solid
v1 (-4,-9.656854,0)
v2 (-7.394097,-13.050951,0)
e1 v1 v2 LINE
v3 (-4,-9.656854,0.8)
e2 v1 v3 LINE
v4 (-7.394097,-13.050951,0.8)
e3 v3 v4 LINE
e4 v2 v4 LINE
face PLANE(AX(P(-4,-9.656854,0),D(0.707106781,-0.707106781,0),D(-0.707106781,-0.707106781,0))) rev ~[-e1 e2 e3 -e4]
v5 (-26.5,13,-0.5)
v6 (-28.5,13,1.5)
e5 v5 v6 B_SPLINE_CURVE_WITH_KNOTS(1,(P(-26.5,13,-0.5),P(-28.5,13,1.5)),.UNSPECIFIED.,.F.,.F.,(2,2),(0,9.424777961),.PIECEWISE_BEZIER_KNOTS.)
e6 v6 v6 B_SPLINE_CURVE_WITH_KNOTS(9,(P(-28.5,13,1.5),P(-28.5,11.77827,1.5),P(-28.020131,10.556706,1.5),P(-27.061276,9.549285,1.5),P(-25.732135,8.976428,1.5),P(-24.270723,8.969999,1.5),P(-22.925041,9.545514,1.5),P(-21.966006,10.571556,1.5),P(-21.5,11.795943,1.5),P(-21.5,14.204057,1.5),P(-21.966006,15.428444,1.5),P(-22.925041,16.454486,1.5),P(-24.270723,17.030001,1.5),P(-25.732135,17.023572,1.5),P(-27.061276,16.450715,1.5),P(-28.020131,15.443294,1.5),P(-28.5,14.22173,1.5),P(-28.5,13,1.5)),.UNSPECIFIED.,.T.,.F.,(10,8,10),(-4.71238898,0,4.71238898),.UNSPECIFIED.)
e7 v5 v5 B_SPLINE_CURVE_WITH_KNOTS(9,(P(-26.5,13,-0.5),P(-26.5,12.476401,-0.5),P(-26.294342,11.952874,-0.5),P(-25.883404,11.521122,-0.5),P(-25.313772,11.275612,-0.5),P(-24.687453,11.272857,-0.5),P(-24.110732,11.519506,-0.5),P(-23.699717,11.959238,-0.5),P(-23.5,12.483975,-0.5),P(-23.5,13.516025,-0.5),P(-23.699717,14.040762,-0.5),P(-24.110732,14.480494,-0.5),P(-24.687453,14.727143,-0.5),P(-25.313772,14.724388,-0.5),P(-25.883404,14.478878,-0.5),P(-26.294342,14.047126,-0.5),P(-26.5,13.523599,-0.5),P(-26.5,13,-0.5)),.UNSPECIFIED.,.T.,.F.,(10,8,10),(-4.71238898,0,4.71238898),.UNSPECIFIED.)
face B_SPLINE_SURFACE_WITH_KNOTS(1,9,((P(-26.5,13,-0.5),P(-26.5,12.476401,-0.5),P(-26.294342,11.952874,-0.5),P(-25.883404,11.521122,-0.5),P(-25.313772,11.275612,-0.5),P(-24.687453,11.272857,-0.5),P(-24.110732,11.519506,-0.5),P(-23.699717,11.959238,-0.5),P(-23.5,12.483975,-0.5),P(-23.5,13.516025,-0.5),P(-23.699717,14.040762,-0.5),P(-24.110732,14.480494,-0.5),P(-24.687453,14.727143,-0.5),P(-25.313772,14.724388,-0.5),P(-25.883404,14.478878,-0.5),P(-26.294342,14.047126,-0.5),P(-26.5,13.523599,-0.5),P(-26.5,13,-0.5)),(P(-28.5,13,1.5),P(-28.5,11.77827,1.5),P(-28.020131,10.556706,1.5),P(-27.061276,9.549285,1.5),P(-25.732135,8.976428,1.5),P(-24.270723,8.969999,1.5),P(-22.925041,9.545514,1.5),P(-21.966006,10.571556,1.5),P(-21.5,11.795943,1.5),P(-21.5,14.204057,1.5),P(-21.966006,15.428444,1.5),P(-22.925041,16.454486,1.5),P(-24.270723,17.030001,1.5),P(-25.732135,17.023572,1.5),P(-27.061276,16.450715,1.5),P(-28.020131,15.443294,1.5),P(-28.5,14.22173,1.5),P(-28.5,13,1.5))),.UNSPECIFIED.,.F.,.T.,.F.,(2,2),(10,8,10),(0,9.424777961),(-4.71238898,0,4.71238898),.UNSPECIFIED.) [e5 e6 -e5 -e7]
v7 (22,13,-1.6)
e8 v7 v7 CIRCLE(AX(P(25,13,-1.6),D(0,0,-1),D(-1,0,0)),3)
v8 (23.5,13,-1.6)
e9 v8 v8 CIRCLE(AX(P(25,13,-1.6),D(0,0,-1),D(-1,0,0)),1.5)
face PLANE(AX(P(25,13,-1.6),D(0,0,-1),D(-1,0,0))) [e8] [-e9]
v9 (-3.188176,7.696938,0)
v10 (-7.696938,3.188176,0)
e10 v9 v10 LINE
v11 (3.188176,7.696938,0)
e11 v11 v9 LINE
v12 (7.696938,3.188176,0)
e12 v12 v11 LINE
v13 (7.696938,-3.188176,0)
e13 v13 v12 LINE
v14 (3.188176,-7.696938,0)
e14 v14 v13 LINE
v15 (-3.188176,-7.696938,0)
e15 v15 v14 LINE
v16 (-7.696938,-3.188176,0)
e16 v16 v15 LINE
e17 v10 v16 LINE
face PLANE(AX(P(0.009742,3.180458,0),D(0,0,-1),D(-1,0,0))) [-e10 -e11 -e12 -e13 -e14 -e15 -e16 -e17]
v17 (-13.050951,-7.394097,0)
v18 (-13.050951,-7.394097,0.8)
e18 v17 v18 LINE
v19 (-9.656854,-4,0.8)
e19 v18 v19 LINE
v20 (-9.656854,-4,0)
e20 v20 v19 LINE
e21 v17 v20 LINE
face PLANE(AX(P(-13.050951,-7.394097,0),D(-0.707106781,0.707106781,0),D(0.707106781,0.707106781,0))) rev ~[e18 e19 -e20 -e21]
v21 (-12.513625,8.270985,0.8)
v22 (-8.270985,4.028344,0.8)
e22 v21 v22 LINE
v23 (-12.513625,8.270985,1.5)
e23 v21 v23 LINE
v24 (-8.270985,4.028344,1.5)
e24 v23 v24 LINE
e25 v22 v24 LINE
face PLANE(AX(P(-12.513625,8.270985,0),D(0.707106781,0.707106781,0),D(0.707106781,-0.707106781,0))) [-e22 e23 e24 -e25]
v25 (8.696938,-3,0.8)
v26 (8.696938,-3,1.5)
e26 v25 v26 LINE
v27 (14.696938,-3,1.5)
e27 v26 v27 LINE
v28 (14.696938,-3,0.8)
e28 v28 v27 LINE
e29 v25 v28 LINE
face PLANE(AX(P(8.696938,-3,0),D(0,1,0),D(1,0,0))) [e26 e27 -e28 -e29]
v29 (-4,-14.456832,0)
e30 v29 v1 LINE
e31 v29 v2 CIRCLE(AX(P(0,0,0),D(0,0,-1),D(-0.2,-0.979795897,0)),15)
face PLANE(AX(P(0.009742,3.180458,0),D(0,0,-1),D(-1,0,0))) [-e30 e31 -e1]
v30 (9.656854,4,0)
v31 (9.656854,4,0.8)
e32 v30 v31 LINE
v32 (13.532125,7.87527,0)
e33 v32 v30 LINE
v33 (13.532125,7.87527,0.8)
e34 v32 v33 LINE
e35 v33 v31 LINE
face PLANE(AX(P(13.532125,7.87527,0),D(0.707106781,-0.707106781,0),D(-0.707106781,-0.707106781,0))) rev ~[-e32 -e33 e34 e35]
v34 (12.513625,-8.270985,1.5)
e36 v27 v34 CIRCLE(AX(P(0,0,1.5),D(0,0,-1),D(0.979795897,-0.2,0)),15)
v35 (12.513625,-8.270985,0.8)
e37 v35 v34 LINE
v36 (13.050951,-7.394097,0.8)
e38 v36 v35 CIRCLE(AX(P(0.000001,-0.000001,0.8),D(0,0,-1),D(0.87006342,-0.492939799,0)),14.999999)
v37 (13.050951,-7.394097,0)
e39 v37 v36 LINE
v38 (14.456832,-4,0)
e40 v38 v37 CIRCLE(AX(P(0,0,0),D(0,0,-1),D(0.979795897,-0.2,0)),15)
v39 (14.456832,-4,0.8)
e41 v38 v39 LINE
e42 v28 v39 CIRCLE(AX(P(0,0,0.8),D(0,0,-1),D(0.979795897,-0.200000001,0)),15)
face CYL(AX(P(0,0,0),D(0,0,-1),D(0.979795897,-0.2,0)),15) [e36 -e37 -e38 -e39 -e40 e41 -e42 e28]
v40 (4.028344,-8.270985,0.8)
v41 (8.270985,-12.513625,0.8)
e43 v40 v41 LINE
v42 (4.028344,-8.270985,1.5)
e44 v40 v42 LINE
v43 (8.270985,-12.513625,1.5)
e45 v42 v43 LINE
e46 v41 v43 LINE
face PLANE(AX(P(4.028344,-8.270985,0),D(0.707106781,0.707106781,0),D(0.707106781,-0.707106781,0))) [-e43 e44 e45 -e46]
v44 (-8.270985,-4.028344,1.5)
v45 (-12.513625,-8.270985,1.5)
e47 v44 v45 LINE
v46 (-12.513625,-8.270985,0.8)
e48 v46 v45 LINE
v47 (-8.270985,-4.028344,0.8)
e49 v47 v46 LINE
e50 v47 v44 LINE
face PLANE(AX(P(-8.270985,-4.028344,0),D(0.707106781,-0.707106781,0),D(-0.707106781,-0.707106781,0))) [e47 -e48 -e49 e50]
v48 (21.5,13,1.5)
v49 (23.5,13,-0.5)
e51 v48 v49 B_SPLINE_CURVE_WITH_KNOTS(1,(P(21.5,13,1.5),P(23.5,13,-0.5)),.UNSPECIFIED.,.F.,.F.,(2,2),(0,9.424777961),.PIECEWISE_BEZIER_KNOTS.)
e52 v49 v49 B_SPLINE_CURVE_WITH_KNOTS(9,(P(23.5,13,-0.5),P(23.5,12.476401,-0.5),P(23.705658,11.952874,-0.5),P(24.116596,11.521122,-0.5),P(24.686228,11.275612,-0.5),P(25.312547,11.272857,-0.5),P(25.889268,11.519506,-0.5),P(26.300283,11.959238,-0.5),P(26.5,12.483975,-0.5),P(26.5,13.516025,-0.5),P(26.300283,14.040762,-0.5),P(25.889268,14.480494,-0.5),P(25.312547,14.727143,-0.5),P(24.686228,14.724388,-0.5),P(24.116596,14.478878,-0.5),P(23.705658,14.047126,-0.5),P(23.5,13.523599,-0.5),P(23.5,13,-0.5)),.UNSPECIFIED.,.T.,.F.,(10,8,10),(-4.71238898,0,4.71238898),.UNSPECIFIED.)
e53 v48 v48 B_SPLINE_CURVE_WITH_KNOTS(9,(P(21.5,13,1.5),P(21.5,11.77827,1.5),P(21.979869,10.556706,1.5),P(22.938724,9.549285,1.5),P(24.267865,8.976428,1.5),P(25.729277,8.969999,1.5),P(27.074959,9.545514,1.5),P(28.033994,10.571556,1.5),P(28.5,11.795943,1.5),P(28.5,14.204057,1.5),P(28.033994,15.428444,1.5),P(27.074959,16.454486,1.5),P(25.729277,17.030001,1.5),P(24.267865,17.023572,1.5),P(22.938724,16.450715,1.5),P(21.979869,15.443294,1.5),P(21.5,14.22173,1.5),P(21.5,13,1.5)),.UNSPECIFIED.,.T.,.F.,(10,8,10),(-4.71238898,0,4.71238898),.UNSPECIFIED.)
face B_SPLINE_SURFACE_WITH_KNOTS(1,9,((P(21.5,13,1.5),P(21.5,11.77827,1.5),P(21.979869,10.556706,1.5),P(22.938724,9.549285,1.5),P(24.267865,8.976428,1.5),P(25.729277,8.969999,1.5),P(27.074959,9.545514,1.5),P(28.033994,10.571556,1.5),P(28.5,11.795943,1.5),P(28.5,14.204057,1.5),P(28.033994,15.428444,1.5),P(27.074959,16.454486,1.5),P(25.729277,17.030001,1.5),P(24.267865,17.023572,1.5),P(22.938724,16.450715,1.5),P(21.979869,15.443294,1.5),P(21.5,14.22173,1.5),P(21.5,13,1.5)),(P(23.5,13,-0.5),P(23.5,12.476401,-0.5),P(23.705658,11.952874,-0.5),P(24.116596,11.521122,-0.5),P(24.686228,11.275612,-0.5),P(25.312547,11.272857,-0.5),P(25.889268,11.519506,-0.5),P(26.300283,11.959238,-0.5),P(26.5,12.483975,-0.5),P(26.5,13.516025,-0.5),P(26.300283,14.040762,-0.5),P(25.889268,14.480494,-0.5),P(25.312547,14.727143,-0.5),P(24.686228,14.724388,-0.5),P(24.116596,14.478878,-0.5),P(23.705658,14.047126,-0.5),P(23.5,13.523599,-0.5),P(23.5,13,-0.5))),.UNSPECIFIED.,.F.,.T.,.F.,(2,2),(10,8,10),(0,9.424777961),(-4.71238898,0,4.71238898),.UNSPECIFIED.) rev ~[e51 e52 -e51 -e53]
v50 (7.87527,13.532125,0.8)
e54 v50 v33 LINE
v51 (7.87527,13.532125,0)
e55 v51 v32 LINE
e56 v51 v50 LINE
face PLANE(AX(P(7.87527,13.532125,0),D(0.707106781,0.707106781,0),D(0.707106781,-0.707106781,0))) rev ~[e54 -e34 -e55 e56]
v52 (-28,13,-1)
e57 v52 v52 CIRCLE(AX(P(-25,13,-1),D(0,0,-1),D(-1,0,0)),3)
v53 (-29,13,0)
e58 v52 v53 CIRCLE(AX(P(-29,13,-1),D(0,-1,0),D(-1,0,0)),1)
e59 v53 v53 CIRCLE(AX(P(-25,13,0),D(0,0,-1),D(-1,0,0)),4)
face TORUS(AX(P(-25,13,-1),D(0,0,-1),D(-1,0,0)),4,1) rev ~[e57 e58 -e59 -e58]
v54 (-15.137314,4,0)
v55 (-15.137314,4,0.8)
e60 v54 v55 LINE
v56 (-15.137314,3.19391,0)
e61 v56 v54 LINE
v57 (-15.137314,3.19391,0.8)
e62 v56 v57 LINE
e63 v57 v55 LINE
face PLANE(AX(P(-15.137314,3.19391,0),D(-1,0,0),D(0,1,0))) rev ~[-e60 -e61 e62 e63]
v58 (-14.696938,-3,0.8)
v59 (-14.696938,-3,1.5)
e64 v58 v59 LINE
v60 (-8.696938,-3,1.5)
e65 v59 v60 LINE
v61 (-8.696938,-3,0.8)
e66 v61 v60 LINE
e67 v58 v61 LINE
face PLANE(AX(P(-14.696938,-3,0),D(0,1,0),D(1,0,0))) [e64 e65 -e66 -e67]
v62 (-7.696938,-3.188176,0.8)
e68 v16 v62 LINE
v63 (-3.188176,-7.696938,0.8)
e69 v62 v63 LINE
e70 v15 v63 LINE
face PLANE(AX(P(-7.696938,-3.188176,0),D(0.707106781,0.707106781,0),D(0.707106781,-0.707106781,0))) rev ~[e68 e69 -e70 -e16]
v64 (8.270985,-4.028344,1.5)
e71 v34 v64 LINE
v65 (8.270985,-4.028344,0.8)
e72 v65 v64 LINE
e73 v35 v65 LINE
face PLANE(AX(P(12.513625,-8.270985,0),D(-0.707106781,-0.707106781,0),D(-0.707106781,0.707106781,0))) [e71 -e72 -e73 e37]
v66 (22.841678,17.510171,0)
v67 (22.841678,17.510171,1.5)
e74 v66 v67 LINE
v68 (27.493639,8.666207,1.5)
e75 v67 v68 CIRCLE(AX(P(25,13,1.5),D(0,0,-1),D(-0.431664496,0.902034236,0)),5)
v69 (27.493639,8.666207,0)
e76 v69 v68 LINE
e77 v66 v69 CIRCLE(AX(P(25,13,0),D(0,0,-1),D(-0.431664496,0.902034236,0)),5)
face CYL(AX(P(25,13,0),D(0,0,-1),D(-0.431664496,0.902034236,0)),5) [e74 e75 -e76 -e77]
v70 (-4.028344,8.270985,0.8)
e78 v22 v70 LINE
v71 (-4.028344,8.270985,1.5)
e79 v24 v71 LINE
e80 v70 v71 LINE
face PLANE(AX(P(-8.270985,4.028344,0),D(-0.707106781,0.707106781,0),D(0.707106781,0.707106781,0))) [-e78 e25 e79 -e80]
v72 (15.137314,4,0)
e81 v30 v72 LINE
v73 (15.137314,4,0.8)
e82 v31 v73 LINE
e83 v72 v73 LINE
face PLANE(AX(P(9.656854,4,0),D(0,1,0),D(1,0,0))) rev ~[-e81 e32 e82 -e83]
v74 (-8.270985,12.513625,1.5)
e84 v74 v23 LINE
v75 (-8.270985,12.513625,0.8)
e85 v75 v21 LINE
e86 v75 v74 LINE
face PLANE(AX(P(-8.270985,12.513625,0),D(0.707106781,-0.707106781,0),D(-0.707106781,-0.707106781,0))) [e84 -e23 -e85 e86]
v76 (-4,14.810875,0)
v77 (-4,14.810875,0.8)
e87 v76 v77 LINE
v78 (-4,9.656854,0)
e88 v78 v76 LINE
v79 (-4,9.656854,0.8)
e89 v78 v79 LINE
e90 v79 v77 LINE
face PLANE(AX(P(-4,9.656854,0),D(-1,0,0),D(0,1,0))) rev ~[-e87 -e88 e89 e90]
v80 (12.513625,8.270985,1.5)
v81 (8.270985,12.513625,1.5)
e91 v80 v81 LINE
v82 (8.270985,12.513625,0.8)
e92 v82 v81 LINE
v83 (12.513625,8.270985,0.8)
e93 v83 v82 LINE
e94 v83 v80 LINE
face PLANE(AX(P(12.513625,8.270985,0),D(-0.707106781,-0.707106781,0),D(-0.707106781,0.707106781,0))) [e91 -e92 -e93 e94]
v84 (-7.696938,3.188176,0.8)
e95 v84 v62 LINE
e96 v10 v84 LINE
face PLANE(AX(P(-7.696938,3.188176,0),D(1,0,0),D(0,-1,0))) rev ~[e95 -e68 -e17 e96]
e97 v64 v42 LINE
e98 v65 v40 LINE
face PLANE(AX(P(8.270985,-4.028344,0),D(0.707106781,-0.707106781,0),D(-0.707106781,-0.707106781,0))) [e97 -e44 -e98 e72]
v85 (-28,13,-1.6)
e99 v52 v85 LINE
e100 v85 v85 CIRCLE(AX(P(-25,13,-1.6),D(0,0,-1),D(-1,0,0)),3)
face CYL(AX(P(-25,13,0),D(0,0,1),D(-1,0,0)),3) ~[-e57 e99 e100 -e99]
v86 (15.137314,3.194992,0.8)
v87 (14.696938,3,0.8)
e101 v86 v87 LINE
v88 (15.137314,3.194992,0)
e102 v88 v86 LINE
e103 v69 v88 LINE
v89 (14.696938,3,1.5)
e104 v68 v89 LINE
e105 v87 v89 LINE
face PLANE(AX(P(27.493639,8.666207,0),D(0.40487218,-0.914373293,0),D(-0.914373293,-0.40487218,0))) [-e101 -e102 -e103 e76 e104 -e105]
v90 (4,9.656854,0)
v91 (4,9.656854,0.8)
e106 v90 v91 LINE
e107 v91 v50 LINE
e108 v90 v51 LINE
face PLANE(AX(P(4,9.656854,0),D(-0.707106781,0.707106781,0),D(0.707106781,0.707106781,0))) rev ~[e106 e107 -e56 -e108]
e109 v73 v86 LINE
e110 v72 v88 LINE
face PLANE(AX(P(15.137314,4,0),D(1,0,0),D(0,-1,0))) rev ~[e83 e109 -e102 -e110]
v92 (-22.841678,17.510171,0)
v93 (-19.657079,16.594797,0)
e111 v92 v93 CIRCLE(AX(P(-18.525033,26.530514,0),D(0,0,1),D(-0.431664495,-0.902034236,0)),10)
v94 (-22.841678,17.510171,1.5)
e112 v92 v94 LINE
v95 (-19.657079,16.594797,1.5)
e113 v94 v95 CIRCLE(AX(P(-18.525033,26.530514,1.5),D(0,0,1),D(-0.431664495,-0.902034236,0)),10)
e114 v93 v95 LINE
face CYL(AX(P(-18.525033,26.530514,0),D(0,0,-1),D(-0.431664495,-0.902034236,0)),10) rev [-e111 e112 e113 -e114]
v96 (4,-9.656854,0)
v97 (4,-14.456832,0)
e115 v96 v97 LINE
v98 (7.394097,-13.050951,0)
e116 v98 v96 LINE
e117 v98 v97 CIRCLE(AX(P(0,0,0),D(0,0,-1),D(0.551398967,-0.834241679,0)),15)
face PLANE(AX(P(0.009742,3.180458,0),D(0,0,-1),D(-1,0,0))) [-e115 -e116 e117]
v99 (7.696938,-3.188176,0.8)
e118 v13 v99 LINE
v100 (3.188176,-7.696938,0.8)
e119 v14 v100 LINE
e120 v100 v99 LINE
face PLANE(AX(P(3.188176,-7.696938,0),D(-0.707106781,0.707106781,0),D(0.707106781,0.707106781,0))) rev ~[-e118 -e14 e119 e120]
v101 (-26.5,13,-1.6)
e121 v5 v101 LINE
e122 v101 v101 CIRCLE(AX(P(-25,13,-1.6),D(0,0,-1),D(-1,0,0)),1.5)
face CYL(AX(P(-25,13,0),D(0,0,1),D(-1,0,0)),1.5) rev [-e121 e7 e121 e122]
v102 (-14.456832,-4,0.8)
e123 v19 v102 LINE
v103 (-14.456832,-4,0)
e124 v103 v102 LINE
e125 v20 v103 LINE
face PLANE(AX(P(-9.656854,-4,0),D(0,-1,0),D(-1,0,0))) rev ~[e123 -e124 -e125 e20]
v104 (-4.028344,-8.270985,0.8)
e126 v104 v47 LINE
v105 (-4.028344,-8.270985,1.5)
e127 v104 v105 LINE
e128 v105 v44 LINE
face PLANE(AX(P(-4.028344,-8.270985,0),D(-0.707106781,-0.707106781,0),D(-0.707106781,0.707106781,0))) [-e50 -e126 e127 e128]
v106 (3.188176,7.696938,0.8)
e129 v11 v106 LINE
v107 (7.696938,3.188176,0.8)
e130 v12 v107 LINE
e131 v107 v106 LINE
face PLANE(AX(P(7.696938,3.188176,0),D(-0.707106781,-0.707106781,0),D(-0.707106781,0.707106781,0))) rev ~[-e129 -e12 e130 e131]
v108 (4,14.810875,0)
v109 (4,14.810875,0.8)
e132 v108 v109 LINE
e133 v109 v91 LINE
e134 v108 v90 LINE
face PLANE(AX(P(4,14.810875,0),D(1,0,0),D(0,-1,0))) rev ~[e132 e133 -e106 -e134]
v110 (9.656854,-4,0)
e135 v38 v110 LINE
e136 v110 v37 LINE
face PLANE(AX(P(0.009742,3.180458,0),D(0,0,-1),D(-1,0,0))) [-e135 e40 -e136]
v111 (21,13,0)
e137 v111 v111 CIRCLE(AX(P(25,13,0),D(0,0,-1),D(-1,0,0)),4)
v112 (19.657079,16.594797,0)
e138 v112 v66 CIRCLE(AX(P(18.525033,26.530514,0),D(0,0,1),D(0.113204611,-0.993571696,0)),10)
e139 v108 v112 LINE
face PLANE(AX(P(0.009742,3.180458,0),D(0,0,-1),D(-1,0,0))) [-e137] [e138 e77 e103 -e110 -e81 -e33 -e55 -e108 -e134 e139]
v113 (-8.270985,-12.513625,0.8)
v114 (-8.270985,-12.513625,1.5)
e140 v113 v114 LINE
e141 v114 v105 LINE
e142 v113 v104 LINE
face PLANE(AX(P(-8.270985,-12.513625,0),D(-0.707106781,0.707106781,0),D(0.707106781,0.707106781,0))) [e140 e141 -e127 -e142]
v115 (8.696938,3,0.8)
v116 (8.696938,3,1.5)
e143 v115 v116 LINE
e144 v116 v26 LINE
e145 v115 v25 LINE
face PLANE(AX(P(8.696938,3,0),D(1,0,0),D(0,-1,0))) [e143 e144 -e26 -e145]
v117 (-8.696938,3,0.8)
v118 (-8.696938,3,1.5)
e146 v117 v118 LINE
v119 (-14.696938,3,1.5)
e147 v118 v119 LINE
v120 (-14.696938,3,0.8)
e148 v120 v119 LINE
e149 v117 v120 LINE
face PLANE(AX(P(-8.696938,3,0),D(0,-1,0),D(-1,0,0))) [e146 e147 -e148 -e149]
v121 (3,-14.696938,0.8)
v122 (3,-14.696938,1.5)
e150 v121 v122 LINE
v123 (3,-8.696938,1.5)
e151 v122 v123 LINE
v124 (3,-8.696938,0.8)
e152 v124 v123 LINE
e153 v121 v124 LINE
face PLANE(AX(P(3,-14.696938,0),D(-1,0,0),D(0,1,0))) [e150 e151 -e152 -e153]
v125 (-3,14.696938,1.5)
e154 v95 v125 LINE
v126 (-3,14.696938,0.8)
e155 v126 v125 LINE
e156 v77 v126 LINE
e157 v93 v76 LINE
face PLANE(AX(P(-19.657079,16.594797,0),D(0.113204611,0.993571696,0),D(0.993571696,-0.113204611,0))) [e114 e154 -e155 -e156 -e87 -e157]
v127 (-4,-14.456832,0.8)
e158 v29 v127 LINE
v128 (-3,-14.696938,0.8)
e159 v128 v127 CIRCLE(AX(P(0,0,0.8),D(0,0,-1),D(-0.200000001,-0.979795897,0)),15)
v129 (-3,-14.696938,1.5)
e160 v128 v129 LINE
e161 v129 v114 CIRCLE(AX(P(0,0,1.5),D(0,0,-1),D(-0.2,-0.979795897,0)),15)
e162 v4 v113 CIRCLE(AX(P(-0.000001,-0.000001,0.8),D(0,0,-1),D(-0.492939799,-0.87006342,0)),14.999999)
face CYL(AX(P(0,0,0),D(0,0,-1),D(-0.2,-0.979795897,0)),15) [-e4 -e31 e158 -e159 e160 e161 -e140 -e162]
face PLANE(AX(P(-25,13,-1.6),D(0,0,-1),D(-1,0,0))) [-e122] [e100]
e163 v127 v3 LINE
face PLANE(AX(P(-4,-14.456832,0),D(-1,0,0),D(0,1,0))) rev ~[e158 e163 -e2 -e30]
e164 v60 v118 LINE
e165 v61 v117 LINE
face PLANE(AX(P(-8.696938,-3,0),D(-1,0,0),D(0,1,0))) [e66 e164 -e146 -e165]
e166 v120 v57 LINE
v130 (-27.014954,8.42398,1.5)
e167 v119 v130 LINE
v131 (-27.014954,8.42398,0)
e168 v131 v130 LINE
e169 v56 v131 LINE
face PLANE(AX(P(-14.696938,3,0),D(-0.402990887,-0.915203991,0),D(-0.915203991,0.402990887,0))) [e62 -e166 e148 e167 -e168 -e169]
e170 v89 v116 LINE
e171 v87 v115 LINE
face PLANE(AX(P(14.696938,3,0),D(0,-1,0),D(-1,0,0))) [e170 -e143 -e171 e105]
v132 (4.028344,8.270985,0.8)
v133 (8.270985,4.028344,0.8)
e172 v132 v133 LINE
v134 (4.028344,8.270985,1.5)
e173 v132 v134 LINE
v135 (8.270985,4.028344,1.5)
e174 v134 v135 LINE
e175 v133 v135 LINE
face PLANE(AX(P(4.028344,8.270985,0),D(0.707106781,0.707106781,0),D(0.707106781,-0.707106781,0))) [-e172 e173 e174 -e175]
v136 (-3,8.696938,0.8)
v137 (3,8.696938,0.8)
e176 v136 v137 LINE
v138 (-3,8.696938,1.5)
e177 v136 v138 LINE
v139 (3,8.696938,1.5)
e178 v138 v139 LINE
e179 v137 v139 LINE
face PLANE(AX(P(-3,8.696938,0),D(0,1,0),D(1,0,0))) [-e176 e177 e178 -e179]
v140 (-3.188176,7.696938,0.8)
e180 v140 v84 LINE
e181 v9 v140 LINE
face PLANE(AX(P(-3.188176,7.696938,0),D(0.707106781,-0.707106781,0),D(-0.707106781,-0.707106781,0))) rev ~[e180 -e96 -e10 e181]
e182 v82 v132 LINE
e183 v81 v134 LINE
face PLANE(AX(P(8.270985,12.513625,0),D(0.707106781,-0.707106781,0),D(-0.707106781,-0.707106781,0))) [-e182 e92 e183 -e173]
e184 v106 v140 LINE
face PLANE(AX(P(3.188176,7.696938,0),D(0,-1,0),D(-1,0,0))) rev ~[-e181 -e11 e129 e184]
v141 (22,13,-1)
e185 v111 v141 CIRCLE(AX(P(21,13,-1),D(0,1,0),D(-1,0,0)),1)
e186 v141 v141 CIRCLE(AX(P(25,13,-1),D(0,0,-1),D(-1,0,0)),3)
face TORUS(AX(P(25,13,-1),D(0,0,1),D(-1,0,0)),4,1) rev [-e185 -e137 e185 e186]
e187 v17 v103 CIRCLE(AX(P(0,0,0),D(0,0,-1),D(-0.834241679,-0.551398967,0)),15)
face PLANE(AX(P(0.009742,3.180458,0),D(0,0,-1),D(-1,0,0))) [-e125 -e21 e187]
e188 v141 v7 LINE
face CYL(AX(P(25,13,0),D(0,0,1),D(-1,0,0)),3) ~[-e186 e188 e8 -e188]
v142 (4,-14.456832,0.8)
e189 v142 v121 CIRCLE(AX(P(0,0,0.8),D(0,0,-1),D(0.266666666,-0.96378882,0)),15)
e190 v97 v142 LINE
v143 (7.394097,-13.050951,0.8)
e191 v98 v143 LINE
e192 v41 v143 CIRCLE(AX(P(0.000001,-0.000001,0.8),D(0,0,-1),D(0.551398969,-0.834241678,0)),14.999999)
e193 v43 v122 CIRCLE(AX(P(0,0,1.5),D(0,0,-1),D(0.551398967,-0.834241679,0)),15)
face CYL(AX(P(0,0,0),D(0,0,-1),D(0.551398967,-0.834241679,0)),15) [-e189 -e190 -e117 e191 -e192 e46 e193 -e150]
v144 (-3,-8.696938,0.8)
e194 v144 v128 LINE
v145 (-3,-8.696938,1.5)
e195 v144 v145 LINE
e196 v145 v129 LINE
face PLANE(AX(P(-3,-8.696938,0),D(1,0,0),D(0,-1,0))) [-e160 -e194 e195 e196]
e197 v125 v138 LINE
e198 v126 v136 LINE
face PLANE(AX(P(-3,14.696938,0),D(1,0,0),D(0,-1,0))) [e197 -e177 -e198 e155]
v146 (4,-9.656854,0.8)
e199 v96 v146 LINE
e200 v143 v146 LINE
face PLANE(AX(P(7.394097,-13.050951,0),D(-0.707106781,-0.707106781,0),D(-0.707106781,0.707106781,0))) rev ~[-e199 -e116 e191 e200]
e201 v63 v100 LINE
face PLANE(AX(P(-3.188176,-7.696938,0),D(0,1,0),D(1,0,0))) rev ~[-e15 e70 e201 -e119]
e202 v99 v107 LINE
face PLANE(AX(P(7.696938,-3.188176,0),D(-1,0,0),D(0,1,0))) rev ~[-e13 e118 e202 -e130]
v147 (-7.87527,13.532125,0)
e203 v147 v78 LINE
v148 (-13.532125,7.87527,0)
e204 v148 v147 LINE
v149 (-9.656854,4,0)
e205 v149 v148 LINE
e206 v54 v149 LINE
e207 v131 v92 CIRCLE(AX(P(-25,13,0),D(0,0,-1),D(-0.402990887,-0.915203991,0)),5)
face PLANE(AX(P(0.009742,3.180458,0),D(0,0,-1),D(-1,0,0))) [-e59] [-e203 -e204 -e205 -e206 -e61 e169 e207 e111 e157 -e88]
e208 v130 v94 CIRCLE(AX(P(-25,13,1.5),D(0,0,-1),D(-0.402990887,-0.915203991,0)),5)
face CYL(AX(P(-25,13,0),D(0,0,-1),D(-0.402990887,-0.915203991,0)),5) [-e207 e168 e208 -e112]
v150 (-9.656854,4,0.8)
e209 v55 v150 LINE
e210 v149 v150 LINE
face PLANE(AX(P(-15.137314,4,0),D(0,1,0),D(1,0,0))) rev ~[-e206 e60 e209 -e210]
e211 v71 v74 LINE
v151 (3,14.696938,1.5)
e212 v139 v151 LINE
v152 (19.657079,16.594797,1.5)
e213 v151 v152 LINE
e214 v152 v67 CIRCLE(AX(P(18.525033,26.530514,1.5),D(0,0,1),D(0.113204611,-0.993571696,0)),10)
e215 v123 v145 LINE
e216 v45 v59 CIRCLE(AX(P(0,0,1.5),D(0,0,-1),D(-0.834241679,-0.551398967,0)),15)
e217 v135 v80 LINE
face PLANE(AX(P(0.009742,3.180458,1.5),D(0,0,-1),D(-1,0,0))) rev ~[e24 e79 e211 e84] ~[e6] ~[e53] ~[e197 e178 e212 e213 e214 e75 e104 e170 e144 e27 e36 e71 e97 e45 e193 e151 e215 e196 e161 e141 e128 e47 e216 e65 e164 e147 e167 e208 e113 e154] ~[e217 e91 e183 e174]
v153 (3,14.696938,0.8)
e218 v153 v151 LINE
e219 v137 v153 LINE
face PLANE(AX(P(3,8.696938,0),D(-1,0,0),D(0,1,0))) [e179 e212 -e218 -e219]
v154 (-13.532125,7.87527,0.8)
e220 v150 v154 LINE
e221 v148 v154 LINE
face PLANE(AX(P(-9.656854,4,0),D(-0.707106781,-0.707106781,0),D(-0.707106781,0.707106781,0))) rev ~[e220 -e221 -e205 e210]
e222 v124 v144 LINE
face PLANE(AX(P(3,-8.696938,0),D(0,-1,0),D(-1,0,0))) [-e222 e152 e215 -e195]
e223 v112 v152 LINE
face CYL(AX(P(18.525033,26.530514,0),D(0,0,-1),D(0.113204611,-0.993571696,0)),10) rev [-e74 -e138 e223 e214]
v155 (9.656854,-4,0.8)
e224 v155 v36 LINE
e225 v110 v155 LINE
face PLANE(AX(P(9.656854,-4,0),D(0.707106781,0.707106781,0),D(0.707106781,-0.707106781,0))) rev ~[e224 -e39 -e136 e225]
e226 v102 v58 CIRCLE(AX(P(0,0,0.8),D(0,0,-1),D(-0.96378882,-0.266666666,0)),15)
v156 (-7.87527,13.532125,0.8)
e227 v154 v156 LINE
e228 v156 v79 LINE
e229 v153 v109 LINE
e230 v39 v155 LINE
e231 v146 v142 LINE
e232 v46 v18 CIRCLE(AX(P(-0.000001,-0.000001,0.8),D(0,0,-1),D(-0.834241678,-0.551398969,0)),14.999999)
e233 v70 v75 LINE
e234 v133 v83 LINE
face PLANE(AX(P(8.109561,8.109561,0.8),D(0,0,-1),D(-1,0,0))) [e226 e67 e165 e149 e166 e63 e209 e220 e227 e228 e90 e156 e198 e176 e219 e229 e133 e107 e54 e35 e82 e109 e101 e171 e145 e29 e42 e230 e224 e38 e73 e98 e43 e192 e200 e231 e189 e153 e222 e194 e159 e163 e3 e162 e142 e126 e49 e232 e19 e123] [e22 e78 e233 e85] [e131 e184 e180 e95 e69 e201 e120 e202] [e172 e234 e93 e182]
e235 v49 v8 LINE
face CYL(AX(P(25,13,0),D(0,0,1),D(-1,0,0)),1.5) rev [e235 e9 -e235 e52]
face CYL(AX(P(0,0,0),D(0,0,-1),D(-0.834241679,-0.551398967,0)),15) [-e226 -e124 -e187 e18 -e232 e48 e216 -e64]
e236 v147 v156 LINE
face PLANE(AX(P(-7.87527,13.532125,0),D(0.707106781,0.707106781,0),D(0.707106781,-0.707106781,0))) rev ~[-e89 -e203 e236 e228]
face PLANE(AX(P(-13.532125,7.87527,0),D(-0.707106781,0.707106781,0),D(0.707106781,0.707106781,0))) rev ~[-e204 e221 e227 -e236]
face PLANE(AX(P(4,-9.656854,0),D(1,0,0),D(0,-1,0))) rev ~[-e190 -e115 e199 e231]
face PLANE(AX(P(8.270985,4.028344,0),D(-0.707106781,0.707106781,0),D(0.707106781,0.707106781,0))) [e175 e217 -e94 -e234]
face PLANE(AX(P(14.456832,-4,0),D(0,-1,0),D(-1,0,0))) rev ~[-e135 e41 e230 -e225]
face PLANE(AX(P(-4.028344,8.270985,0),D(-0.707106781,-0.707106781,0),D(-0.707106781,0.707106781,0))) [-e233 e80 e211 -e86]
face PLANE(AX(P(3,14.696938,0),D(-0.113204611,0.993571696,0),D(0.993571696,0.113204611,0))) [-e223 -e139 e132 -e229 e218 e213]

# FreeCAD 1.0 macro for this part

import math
import FreeCAD as App
import Part
import Sketcher
from FreeCAD import Vector


def edges_at(feature, points):
    """Names of the edges that pass closest to the given points."""
    edges = feature.Shape.Edges
    near = lambda p: min(range(len(edges)), key=lambda i: edges[i].distToShape(Part.Vertex(*p))[0])
    return sorted({f"Edge{near(p) + 1}" for p in points})

doc = App.newDocument("Part")
params = doc.addObject("Spreadsheet::Sheet", "Params")
for row, (alias, value) in enumerate([
    ("sketch1_diameter", "3 mm"),
    ("sketch1_radius", "10 mm"),
    ("sketch1_radius2", "5 mm"),
    ("sketch1_radius3", "15 mm"),
    ("sketch1_width", "6 mm"),
    ("pad1_length", "1.5 mm"),
    ("sketch2_radius", "15 mm"),
    ("sketch2_width", "6 mm"),
    ("sketch2_length", "6 mm"),
    ("sketch2_length2", "8 mm"),
    ("pocket1_length", "0.8 mm"),
    ("sketch3_diameter", "6 mm"),
    ("sketch3_diameter2", "3 mm"),
    ("pad2_length", "1.6 mm"),
    ("fillet_radius", "1 mm"),
    ("chamfer_size", "2 mm"),
], start=1):
    params.set(f"A{row}", alias)
    params.set(f"B{row}", "=" + value)
    params.setAlias(f"B{row}", alias)

body = doc.addObject("PartDesign::Body", "Body")

sketch1 = body.newObject("Sketcher::SketchObject", "Sketch")
sketch1.AttachmentSupport = (doc.getObject("XY_Plane"), [""])
sketch1.MapMode = "FlatFace"
sketch1.addGeometry([
    Part.LineSegment(Vector(-3, 8.7, 0), Vector(-3, 14.7, 0)),
    Part.LineSegment(Vector(-3, 14.7, 0), Vector(-19.7, 16.6, 0)),
    Part.ArcOfCircle(Part.Circle(Vector(-18.5, 26.5, 0), Vector(0, 0, 1), 10), math.radians(-115.57), math.radians(-96.5)),
    Part.ArcOfCircle(Part.Circle(Vector(-25, 13, 0), Vector(0, 0, 1), 5), math.radians(64), math.radians(246)),
    Part.LineSegment(Vector(-27, 8.4, 0), Vector(-14.7, 3, 0)),
    Part.LineSegment(Vector(-14.7, 3, 0), Vector(-8.7, 3, 0)),
    Part.LineSegment(Vector(-8.7, 3, 0), Vector(-8.7, -3, 0)),
    Part.LineSegment(Vector(-8.7, -3, 0), Vector(-14.7, -3, 0)),
    Part.ArcOfCircle(Part.Circle(Vector(0, 0, 0), Vector(0, 0, 1), 15), math.radians(-168), math.radians(-147)),
    Part.LineSegment(Vector(-12.5, -8.3, 0), Vector(-8.3, -4, 0)),
    Part.LineSegment(Vector(-8.3, -4, 0), Vector(-4, -8.3, 0)),
    Part.LineSegment(Vector(-4, -8.3, 0), Vector(-8.3, -12.5, 0)),
    Part.ArcOfCircle(Part.Circle(Vector(0, 0, 0), Vector(0, 0, 1), 15), math.radians(-123), math.radians(-102)),
    Part.LineSegment(Vector(-3, -14.7, 0), Vector(-3, -8.7, 0)),
    Part.LineSegment(Vector(-3, -8.7, 0), Vector(3, -8.7, 0)),
    Part.LineSegment(Vector(3, -8.7, 0), Vector(3, -14.7, 0)),
    Part.ArcOfCircle(Part.Circle(Vector(0, 0, 0), Vector(0, 0, 1), 15), math.radians(-78), math.radians(-57)),
    Part.LineSegment(Vector(8.3, -12.5, 0), Vector(4, -8.3, 0)),
    Part.LineSegment(Vector(4, -8.3, 0), Vector(8.3, -4, 0)),
    Part.LineSegment(Vector(8.3, -4, 0), Vector(12.5, -8.3, 0)),
    Part.ArcOfCircle(Part.Circle(Vector(0, 0, 0), Vector(0, 0, 1), 15), math.radians(-33), math.radians(-12)),
    Part.LineSegment(Vector(14.7, -3, 0), Vector(8.7, -3, 0)),
    Part.LineSegment(Vector(8.7, -3, 0), Vector(8.7, 3, 0)),
    Part.LineSegment(Vector(8.7, 3, 0), Vector(14.7, 3, 0)),
    Part.LineSegment(Vector(14.7, 3, 0), Vector(27.5, 8.7, 0)),
    Part.ArcOfCircle(Part.Circle(Vector(25, 13, 0), Vector(0, 0, 1), 5), math.radians(-60), math.radians(116)),
    Part.ArcOfCircle(Part.Circle(Vector(18.5, 26.5, 0), Vector(0, 0, 1), 10), math.radians(-83.5), math.radians(-64.43)),
    Part.LineSegment(Vector(19.7, 16.6, 0), Vector(3, 14.7, 0)),
    Part.LineSegment(Vector(3, 14.7, 0), Vector(3, 8.7, 0)),
    Part.LineSegment(Vector(3, 8.7, 0), Vector(-3, 8.7, 0)),
    Part.LineSegment(Vector(4, 8.3, 0), Vector(8.3, 12.5, 0)),
    Part.LineSegment(Vector(8.3, 12.5, 0), Vector(12.5, 8.3, 0)),
    Part.LineSegment(Vector(12.5, 8.3, 0), Vector(8.3, 4, 0)),
    Part.LineSegment(Vector(8.3, 4, 0), Vector(4, 8.3, 0)),
    Part.LineSegment(Vector(-8.3, 4, 0), Vector(-12.5, 8.3, 0)),
    Part.LineSegment(Vector(-12.5, 8.3, 0), Vector(-8.3, 12.5, 0)),
    Part.LineSegment(Vector(-8.3, 12.5, 0), Vector(-4, 8.3, 0)),
    Part.LineSegment(Vector(-4, 8.3, 0), Vector(-8.3, 4, 0)),
    Part.Circle(Vector(25, 13, 0), Vector(0, 0, 1), 1.5),
    Part.Circle(Vector(-25, 13, 0), Vector(0, 0, 1), 1.5),
], False)
sketch1.addConstraint([
    Sketcher.Constraint("Coincident", 0, 2, 1, 1),
    Sketcher.Constraint("Tangent", 1, 2, 2, 2),
    Sketcher.Constraint("Tangent", 2, 1, 3, 1),
    Sketcher.Constraint("Tangent", 3, 2, 4, 1),
    Sketcher.Constraint("Coincident", 4, 2, 5, 1),
    Sketcher.Constraint("Coincident", 5, 2, 6, 1),
    Sketcher.Constraint("Coincident", 6, 2, 7, 1),
    Sketcher.Constraint("Coincident", 7, 2, 8, 1),
    Sketcher.Constraint("Coincident", 8, 2, 9, 1),
    Sketcher.Constraint("Coincident", 9, 2, 10, 1),
    Sketcher.Constraint("Coincident", 10, 2, 11, 1),
    Sketcher.Constraint("Coincident", 11, 2, 12, 1),
    Sketcher.Constraint("Coincident", 12, 2, 13, 1),
    Sketcher.Constraint("Coincident", 13, 2, 14, 1),
    Sketcher.Constraint("Coincident", 14, 2, 15, 1),
    Sketcher.Constraint("Coincident", 15, 2, 16, 1),
    Sketcher.Constraint("Coincident", 16, 2, 17, 1),
    Sketcher.Constraint("Coincident", 17, 2, 18, 1),
    Sketcher.Constraint("Coincident", 18, 2, 19, 1),
    Sketcher.Constraint("Coincident", 19, 2, 20, 1),
    Sketcher.Constraint("Coincident", 20, 2, 21, 1),
    Sketcher.Constraint("Coincident", 21, 2, 22, 1),
    Sketcher.Constraint("Coincident", 22, 2, 23, 1),
    Sketcher.Constraint("Coincident", 23, 2, 24, 1),
    Sketcher.Constraint("Coincident", 24, 2, 25, 1),
    Sketcher.Constraint("Tangent", 25, 2, 26, 2),
    Sketcher.Constraint("Tangent", 26, 1, 27, 1),
    Sketcher.Constraint("Coincident", 27, 2, 28, 1),
    Sketcher.Constraint("Coincident", 28, 2, 29, 1),
    Sketcher.Constraint("Coincident", 29, 2, 0, 1),
    Sketcher.Constraint("Coincident", 30, 2, 31, 1),
    Sketcher.Constraint("Coincident", 31, 2, 32, 1),
    Sketcher.Constraint("Coincident", 32, 2, 33, 1),
    Sketcher.Constraint("Coincident", 33, 2, 30, 1),
    Sketcher.Constraint("Coincident", 34, 2, 35, 1),
    Sketcher.Constraint("Coincident", 35, 2, 36, 1),
    Sketcher.Constraint("Coincident", 36, 2, 37, 1),
    Sketcher.Constraint("Coincident", 37, 2, 34, 1),
    Sketcher.Constraint("Vertical", 0),
    Sketcher.Constraint("Horizontal", 5),
    Sketcher.Constraint("Vertical", 6),
    Sketcher.Constraint("Horizontal", 7),
    Sketcher.Constraint("Vertical", 13),
    Sketcher.Constraint("Horizontal", 14),
    Sketcher.Constraint("Vertical", 15),
    Sketcher.Constraint("Horizontal", 21),
    Sketcher.Constraint("Vertical", 22),
    Sketcher.Constraint("Horizontal", 23),
    Sketcher.Constraint("Vertical", 28),
    Sketcher.Constraint("Horizontal", 29),
    Sketcher.Constraint("Coincident", 8, 3, -1, 1),
    Sketcher.Constraint("Coincident", 12, 3, -1, 1),
    Sketcher.Constraint("Coincident", 16, 3, -1, 1),
    Sketcher.Constraint("Coincident", 20, 3, -1, 1),
    Sketcher.Constraint("Coincident", 38, 3, 25, 3),
    Sketcher.Constraint("Coincident", 39, 3, 3, 3),
    Sketcher.Constraint("Equal", 8, 12),
    Sketcher.Constraint("Equal", 12, 16),
    Sketcher.Constraint("Equal", 16, 20),
    Sketcher.Constraint("Equal", 3, 25),
    Sketcher.Constraint("Equal", 2, 26),
    Sketcher.Constraint("Equal", 38, 39),
    Sketcher.Constraint("Symmetric", 0, 2, 15, 2, -1, 1),
    Sketcher.Constraint("Symmetric", 4, 2, 20, 2, -1, 1),
    Sketcher.Constraint("Symmetric", 6, 2, 22, 2, -1, 1),
    Sketcher.Constraint("Symmetric", 12, 2, 27, 2, -1, 1),
    Sketcher.Constraint("Symmetric", 11, 2, 30, 2, -1, 1),
    Sketcher.Constraint("Symmetric", 8, 2, 31, 2, -1, 1),
    Sketcher.Constraint("Symmetric", 9, 2, 32, 2, -1, 1),
    Sketcher.Constraint("Symmetric", 10, 2, 33, 2, -1, 1),
    Sketcher.Constraint("Symmetric", 19, 2, 34, 2, -1, 1),
    Sketcher.Constraint("Symmetric", 16, 2, 35, 2, -1, 1),
    Sketcher.Constraint("Symmetric", 17, 2, 36, 2, -1, 1),
    Sketcher.Constraint("Symmetric", 18, 2, 37, 2, -1, 1),
    Sketcher.Constraint("Symmetric", 3, 3, 25, 3, -2),
    Sketcher.Constraint("Symmetric", 10, 2, 17, 2, -2),
    Sketcher.Constraint("Symmetric", 9, 2, 18, 2, -2),
    Sketcher.Constraint("Symmetric", 4, 2, 23, 2, -2),
    Sketcher.Constraint("Symmetric", 1, 2, 26, 1, -2),
    Sketcher.Constraint("Perpendicular", 9, 10),
    Sketcher.Constraint("Perpendicular", 10, 11),
    Sketcher.Constraint("Perpendicular", 11, 17),
    Sketcher.Constraint("Perpendicular", 17, 18),
    Sketcher.Constraint("Perpendicular", 18, 19),
    Sketcher.Constraint("Perpendicular", 30, 31),
    Sketcher.Constraint("Horizontal", 8, 2, 10, 2),
    Sketcher.Constraint("Equal", 7, 14),
    Sketcher.Constraint("Equal", 29, 0),
    Sketcher.Constraint("Equal", 0, 6),
    Sketcher.Constraint("Equal", 6, 13),
    Sketcher.Constraint("Diameter", 38, 3.0),
    Sketcher.Constraint("Radius", 2, 10.0),
    Sketcher.Constraint("Radius", 3, 5.0),
    Sketcher.Constraint("Radius", 8, 15.0),
    Sketcher.Constraint("DistanceX", 5, 1, 5, 2, 6.0),
    Sketcher.Constraint("Distance", 9, 6.0),
    Sketcher.Constraint("DistanceX", 3, 3, -1, 1, 25.0),
    Sketcher.Constraint("DistanceY", -1, 1, 3, 3, 13.0),
    Sketcher.Constraint("DistanceX", 2, 1, 1, 2, 3.184599),
    Sketcher.Constraint("DistanceX", 23, 2, 24, 2, 12.7967),
])
sketch1.setExpression("Constraints[90]", "Params.sketch1_diameter")
sketch1.setExpression("Constraints[91]", "Params.sketch1_radius")
sketch1.setExpression("Constraints[92]", "Params.sketch1_radius2")
sketch1.setExpression("Constraints[93]", "Params.sketch1_radius3")
sketch1.setExpression("Constraints[94]", "Params.sketch1_width")
pad1 = body.newObject("PartDesign::Pad", "Pad")
pad1.Profile = sketch1
pad1.setExpression("Length", "Params.pad1_length")

sketch2 = body.newObject("Sketcher::SketchObject", "Sketch001")
sketch2.AttachmentSupport = (doc.getObject("XY_Plane"), [""])
sketch2.MapMode = "FlatFace"
sketch2.addGeometry([
    Part.LineSegment(Vector(13.53, 7.88, 0), Vector(9.66, 4, 0)),
    Part.LineSegment(Vector(9.66, 4, 0), Vector(15.14, 4, 0)),
    Part.LineSegment(Vector(15.14, 4, 0), Vector(15.14, 3.19, 0)),
    Part.LineSegment(Vector(15.14, 3.19, 0), Vector(14.7, 3, 0)),
    Part.LineSegment(Vector(14.7, 3, 0), Vector(8.7, 3, 0)),
    Part.LineSegment(Vector(8.7, 3, 0), Vector(8.7, -3, 0)),
    Part.LineSegment(Vector(8.7, -3, 0), Vector(14.7, -3, 0)),
    Part.ArcOfCircle(Part.Circle(Vector(0, 0, 0), Vector(0, 0, 1), 15), math.radians(-15.47), math.radians(-11.54)),
    Part.LineSegment(Vector(14.46, -4, 0), Vector(9.66, -4, 0)),
    Part.LineSegment(Vector(9.66, -4, 0), Vector(13.05, -7.39, 0)),
    Part.ArcOfCircle(Part.Circle(Vector(0, 0, 0), Vector(0, 0, 1), 15), math.radians(-33.46), math.radians(-29.53)),
    Part.LineSegment(Vector(12.51, -8.27, 0), Vector(8.27, -4.03, 0)),
    Part.LineSegment(Vector(8.27, -4.03, 0), Vector(4.03, -8.27, 0)),
    Part.LineSegment(Vector(4.03, -8.27, 0), Vector(8.27, -12.51, 0)),
    Part.ArcOfCircle(Part.Circle(Vector(0, 0, 0), Vector(0, 0, 1), 15), math.radians(-60.47), math.radians(-56.54)),
    Part.LineSegment(Vector(7.39, -13.05, 0), Vector(4, -9.66, 0)),
    Part.LineSegment(Vector(4, -9.66, 0), Vector(4, -14.46, 0)),
    Part.ArcOfCircle(Part.Circle(Vector(0, 0, 0), Vector(0, 0, 1), 15), math.radians(-78.46), math.radians(-74.53)),
    Part.LineSegment(Vector(3, -14.7, 0), Vector(3, -8.7, 0)),
    Part.LineSegment(Vector(3, -8.7, 0), Vector(-3, -8.7, 0)),
    Part.LineSegment(Vector(-3, -8.7, 0), Vector(-3, -14.7, 0)),
    Part.ArcOfCircle(Part.Circle(Vector(0, 0, 0), Vector(0, 0, 1), 15), math.radians(-105.47), math.radians(-101.54)),
    Part.LineSegment(Vector(-4, -14.46, 0), Vector(-4, -9.66, 0)),
    Part.LineSegment(Vector(-4, -9.66, 0), Vector(-7.39, -13.05, 0)),
    Part.ArcOfCircle(Part.Circle(Vector(0, 0, 0), Vector(0, 0, 1), 15), math.radians(-123.46), math.radians(-119.53)),
    Part.LineSegment(Vector(-8.27, -12.51, 0), Vector(-4.03, -8.27, 0)),
    Part.LineSegment(Vector(-4.03, -8.27, 0), Vector(-8.27, -4.03, 0)),
    Part.LineSegment(Vector(-8.27, -4.03, 0), Vector(-12.51, -8.27, 0)),
    Part.ArcOfCircle(Part.Circle(Vector(0, 0, 0), Vector(0, 0, 1), 15), math.radians(-150.47), math.radians(-146.54)),
    Part.LineSegment(Vector(-13.05, -7.39, 0), Vector(-9.66, -4, 0)),
    Part.LineSegment(Vector(-9.66, -4, 0), Vector(-14.46, -4, 0)),
    Part.ArcOfCircle(Part.Circle(Vector(0, 0, 0), Vector(0, 0, 1), 15), math.radians(-168.46), math.radians(-164.53)),
    Part.LineSegment(Vector(-14.7, -3, 0), Vector(-8.7, -3, 0)),
    Part.LineSegment(Vector(-8.7, -3, 0), Vector(-8.7, 3, 0)),
    Part.LineSegment(Vector(-8.7, 3, 0), Vector(-14.7, 3, 0)),
    Part.LineSegment(Vector(-14.7, 3, 0), Vector(-15.14, 3.19, 0)),
    Part.LineSegment(Vector(-15.14, 3.19, 0), Vector(-15.14, 4, 0)),
    Part.LineSegment(Vector(-15.14, 4, 0), Vector(-9.66, 4, 0)),
    Part.LineSegment(Vector(-9.66, 4, 0), Vector(-13.53, 7.88, 0)),
    Part.LineSegment(Vector(-13.53, 7.88, 0), Vector(-7.88, 13.53, 0)),
    Part.LineSegment(Vector(-7.88, 13.53, 0), Vector(-4, 9.66, 0)),
    Part.LineSegment(Vector(-4, 9.66, 0), Vector(-4, 14.81, 0)),
    Part.LineSegment(Vector(-4, 14.81, 0), Vector(-3, 14.7, 0)),
    Part.LineSegment(Vector(-3, 14.7, 0), Vector(-3, 8.7, 0)),
    Part.LineSegment(Vector(-3, 8.7, 0), Vector(3, 8.7, 0)),
    Part.LineSegment(Vector(3, 8.7, 0), Vector(3, 14.7, 0)),
    Part.LineSegment(Vector(3, 14.7, 0), Vector(4, 14.81, 0)),
    Part.LineSegment(Vector(4, 14.81, 0), Vector(4, 9.66, 0)),
    Part.LineSegment(Vector(4, 9.66, 0), Vector(7.88, 13.53, 0)),
    Part.LineSegment(Vector(7.88, 13.53, 0), Vector(13.53, 7.88, 0)),
    Part.LineSegment(Vector(7.7, -3.19, 0), Vector(7.7, 3.19, 0)),
    Part.LineSegment(Vector(7.7, 3.19, 0), Vector(3.19, 7.7, 0)),
    Part.LineSegment(Vector(3.19, 7.7, 0), Vector(-3.19, 7.7, 0)),
    Part.LineSegment(Vector(-3.19, 7.7, 0), Vector(-7.7, 3.19, 0)),
    Part.LineSegment(Vector(-7.7, 3.19, 0), Vector(-7.7, -3.19, 0)),
    Part.LineSegment(Vector(-7.7, -3.19, 0), Vector(-3.19, -7.7, 0)),
    Part.LineSegment(Vector(-3.19, -7.7, 0), Vector(3.19, -7.7, 0)),
    Part.LineSegment(Vector(3.19, -7.7, 0), Vector(7.7, -3.19, 0)),
    Part.LineSegment(Vector(4.03, 8.27, 0), Vector(8.27, 4.03, 0)),
    Part.LineSegment(Vector(8.27, 4.03, 0), Vector(12.51, 8.27, 0)),
    Part.LineSegment(Vector(12.51, 8.27, 0), Vector(8.27, 12.51, 0)),
    Part.LineSegment(Vector(8.27, 12.51, 0), Vector(4.03, 8.27, 0)),
    Part.LineSegment(Vector(-8.27, 4.03, 0), Vector(-4.03, 8.27, 0)),
    Part.LineSegment(Vector(-4.03, 8.27, 0), Vector(-8.27, 12.51, 0)),
    Part.LineSegment(Vector(-8.27, 12.51, 0), Vector(-12.51, 8.27, 0)),
    Part.LineSegment(Vector(-12.51, 8.27, 0), Vector(-8.27, 4.03, 0)),
], False)
sketch2.addConstraint([
    Sketcher.Constraint("Coincident", 0, 2, 1, 1),
    Sketcher.Constraint("Coincident", 1, 2, 2, 1),
    Sketcher.Constraint("Coincident", 2, 2, 3, 1),
    Sketcher.Constraint("Coincident", 3, 2, 4, 1),
    Sketcher.Constraint("Coincident", 4, 2, 5, 1),
    Sketcher.Constraint("Coincident", 5, 2, 6, 1),
    Sketcher.Constraint("Coincident", 6, 2, 7, 2),
    Sketcher.Constraint("Coincident", 7, 1, 8, 1),
    Sketcher.Constraint("Coincident", 8, 2, 9, 1),
    Sketcher.Constraint("Coincident", 9, 2, 10, 2),
    Sketcher.Constraint("Coincident", 10, 1, 11, 1),
    Sketcher.Constraint("Coincident", 11, 2, 12, 1),
    Sketcher.Constraint("Coincident", 12, 2, 13, 1),
    Sketcher.Constraint("Coincident", 13, 2, 14, 2),
    Sketcher.Constraint("Coincident", 14, 1, 15, 1),
    Sketcher.Constraint("Coincident", 15, 2, 16, 1),
    Sketcher.Constraint("Coincident", 16, 2, 17, 2),
    Sketcher.Constraint("Coincident", 17, 1, 18, 1),
    Sketcher.Constraint("Coincident", 18, 2, 19, 1),
    Sketcher.Constraint("Coincident", 19, 2, 20, 1),
    Sketcher.Constraint("Coincident", 20, 2, 21, 2),
    Sketcher.Constraint("Coincident", 21, 1, 22, 1),
    Sketcher.Constraint("Coincident", 22, 2, 23, 1),
    Sketcher.Constraint("Coincident", 23, 2, 24, 2),
    Sketcher.Constraint("Coincident", 24, 1, 25, 1),
    Sketcher.Constraint("Coincident", 25, 2, 26, 1),
    Sketcher.Constraint("Coincident", 26, 2, 27, 1),
    Sketcher.Constraint("Coincident", 27, 2, 28, 2),
    Sketcher.Constraint("Coincident", 28, 1, 29, 1),
    Sketcher.Constraint("Coincident", 29, 2, 30, 1),
    Sketcher.Constraint("Coincident", 30, 2, 31, 2),
    Sketcher.Constraint("Coincident", 31, 1, 32, 1),
    Sketcher.Constraint("Coincident", 32, 2, 33, 1),
    Sketcher.Constraint("Coincident", 33, 2, 34, 1),
    Sketcher.Constraint("Coincident", 34, 2, 35, 1),
    Sketcher.Constraint("Coincident", 35, 2, 36, 1),
    Sketcher.Constraint("Coincident", 36, 2, 37, 1),
    Sketcher.Constraint("Coincident", 37, 2, 38, 1),
    Sketcher.Constraint("Coincident", 38, 2, 39, 1),
    Sketcher.Constraint("Coincident", 39, 2, 40, 1),
    Sketcher.Constraint("Coincident", 40, 2, 41, 1),
    Sketcher.Constraint("Coincident", 41, 2, 42, 1),
    Sketcher.Constraint("Coincident", 42, 2, 43, 1),
    Sketcher.Constraint("Coincident", 43, 2, 44, 1),
    Sketcher.Constraint("Coincident", 44, 2, 45, 1),
    Sketcher.Constraint("Coincident", 45, 2, 46, 1),
    Sketcher.Constraint("Coincident", 46, 2, 47, 1),
    Sketcher.Constraint("Coincident", 47, 2, 48, 1),
    Sketcher.Constraint("Coincident", 48, 2, 49, 1),
    Sketcher.Constraint("Coincident", 49, 2, 0, 1),
    Sketcher.Constraint("Coincident", 50, 2, 51, 1),
    Sketcher.Constraint("Coincident", 51, 2, 52, 1),
    Sketcher.Constraint("Coincident", 52, 2, 53, 1),
    Sketcher.Constraint("Coincident", 53, 2, 54, 1),
    Sketcher.Constraint("Coincident", 54, 2, 55, 1),
    Sketcher.Constraint("Coincident", 55, 2, 56, 1),
    Sketcher.Constraint("Coincident", 56, 2, 57, 1),
    Sketcher.Constraint("Coincident", 57, 2, 50, 1),
    Sketcher.Constraint("Coincident", 58, 2, 59, 1),
    Sketcher.Constraint("Coincident", 59, 2, 60, 1),
    Sketcher.Constraint("Coincident", 60, 2, 61, 1),
    Sketcher.Constraint("Coincident", 61, 2, 58, 1),
    Sketcher.Constraint("Coincident", 62, 2, 63, 1),
    Sketcher.Constraint("Coincident", 63, 2, 64, 1),
    Sketcher.Constraint("Coincident", 64, 2, 65, 1),
    Sketcher.Constraint("Coincident", 65, 2, 62, 1),
    Sketcher.Constraint("Horizontal", 1),
    Sketcher.Constraint("Vertical", 2),
    Sketcher.Constraint("Horizontal", 4),
    Sketcher.Constraint("Vertical", 5),
    Sketcher.Constraint("Horizontal", 6),
    Sketcher.Constraint("Horizontal", 8),
    Sketcher.Constraint("Vertical", 16),
    Sketcher.Constraint("Vertical", 18),
    Sketcher.Constraint("Horizontal", 19),
    Sketcher.Constraint("Vertical", 20),
    Sketcher.Constraint("Vertical", 22),
    Sketcher.Constraint("Horizontal", 30),
    Sketcher.Constraint("Horizontal", 32),
    Sketcher.Constraint("Vertical", 33),
    Sketcher.Constraint("Horizontal", 34),
    Sketcher.Constraint("Vertical", 36),
    Sketcher.Constraint("Horizontal", 37),
    Sketcher.Constraint("Vertical", 41),
    Sketcher.Constraint("Vertical", 43),
    Sketcher.Constraint("Horizontal", 44),
    Sketcher.Constraint("Vertical", 45),
    Sketcher.Constraint("Vertical", 47),
    Sketcher.Constraint("Vertical", 50),
    Sketcher.Constraint("Horizontal", 52),
    Sketcher.Constraint("Vertical", 54),
    Sketcher.Constraint("Horizontal", 56),
    Sketcher.Constraint("Coincident", 7, 3, -1, 1),
    Sketcher.Constraint("Coincident", 10, 3, -1, 1),
    Sketcher.Constraint("Coincident", 14, 3, -1, 1),
    Sketcher.Constraint("Coincident", 17, 3, -1, 1),
    Sketcher.Constraint("Coincident", 21, 3, -1, 1),
    Sketcher.Constraint("Coincident", 24, 3, -1, 1),
    Sketcher.Constraint("Coincident", 28, 3, -1, 1),
    Sketcher.Constraint("Coincident", 31, 3, -1, 1),
    Sketcher.Constraint("Equal", 7, 10),
    Sketcher.Constraint("Equal", 10, 14),
    Sketcher.Constraint("Equal", 14, 17),
    Sketcher.Constraint("Equal", 17, 21),
    Sketcher.Constraint("Equal", 21, 24),
    Sketcher.Constraint("Equal", 24, 28),
    Sketcher.Constraint("Equal", 28, 31),
    Sketcher.Constraint("Symmetric", 0, 2, 29, 2, -1, 1),
    Sketcher.Constraint("Symmetric", 3, 2, 31, 1, -1, 1),
    Sketcher.Constraint("Symmetric", 5, 2, 33, 2, -1, 1),
    Sketcher.Constraint("Symmetric", 8, 2, 37, 2, -1, 1),
    Sketcher.Constraint("Symmetric", 15, 2, 40, 2, -1, 1),
    Sketcher.Constraint("Symmetric", 17, 1, 42, 2, -1, 1),
    Sketcher.Constraint("Symmetric", 19, 2, 44, 2, -1, 1),
    Sketcher.Constraint("Symmetric", 22, 2, 47, 2, -1, 1),
    Sketcher.Constraint("Symmetric", 50, 2, 54, 2, -1, 1),
    Sketcher.Constraint("Symmetric", 51, 2, 55, 2, -1, 1),
    Sketcher.Constraint("Symmetric", 26, 2, 58, 2, -1, 1),
    Sketcher.Constraint("Symmetric", 27, 2, 59, 2, -1, 1),
    Sketcher.Constraint("Symmetric", 24, 1, 60, 2, -1, 1),
    Sketcher.Constraint("Symmetric", 25, 2, 61, 2, -1, 1),
    Sketcher.Constraint("Symmetric", 12, 2, 62, 2, -1, 1),
    Sketcher.Constraint("Symmetric", 13, 2, 63, 2, -1, 1),
    Sketcher.Constraint("Symmetric", 10, 1, 64, 2, -1, 1),
    Sketcher.Constraint("Symmetric", 11, 2, 65, 2, -1, 1),
    Sketcher.Constraint("Symmetric", 15, 2, 22, 2, -2),
    Sketcher.Constraint("Symmetric", 12, 2, 25, 2, -2),
    Sketcher.Constraint("Symmetric", 11, 2, 26, 2, -2),
    Sketcher.Constraint("Symmetric", 8, 2, 29, 2, -2),
    Sketcher.Constraint("Symmetric", 3, 2, 34, 2, -2),
    Sketcher.Constraint("Symmetric", 42, 2, 45, 2, -2),
    Sketcher.Constraint("Symmetric", 39, 2, 48, 2, -2),
    Sketcher.Constraint("Symmetric", 38, 2, 49, 2, -2),
    Sketcher.Constraint("Perpendicular", 0, 9),
    Sketcher.Constraint("Parallel", 9, 11),
    Sketcher.Constraint("Perpendicular", 11, 12),
    Sketcher.Constraint("Perpendicular", 12, 13),
    Sketcher.Constraint("Parallel", 13, 15),
    Sketcher.Constraint("Perpendicular", 15, 23),
    Sketcher.Constraint("Parallel", 23, 25),
    Sketcher.Constraint("Perpendicular", 25, 26),
    Sketcher.Constraint("Perpendicular", 26, 27),
    Sketcher.Constraint("Parallel", 27, 29),
    Sketcher.Constraint("Perpendicular", 38, 39),
    Sketcher.Constraint("Perpendicular", 39, 40),
    Sketcher.Constraint("Parallel", 49, 51),
    Sketcher.Constraint("Perpendicular", 51, 53),
    Sketcher.Constraint("Perpendicular", 55, 57),
    Sketcher.Constraint("Perpendicular", 59, 60),
    Sketcher.Constraint("Horizontal", 10, 1, 12, 2),
    Sketcher.Constraint("Horizontal", 41, 2, 46, 2),
    Sketcher.Constraint("Horizontal", 50, 2, 53, 2),
    Sketcher.Constraint("Horizontal", 54, 2, 57, 2),
    Sketcher.Constraint("Equal", 6, 19),
    Sketcher.Constraint("Equal", 1, 37),
    Sketcher.Constraint("Equal", 44, 5),
    Sketcher.Constraint("Equal", 30, 16),
    Sketcher.Constraint("Equal", 5, 18),
    Sketcher.Constraint("Equal", 56, 50),
    Sketcher.Constraint("Equal", 9, 15),
    Sketcher.Constraint("Radius", 7, 15.0),
    Sketcher.Constraint("DistanceX", 4, 2, 4, 1, 6.0),
    Sketcher.Constraint("Distance", 11, 6.0),
    Sketcher.Constraint("Distance", 39, 8.0),
    Sketcher.Constraint("DistanceY", -1, 1, 0, 2, 4.0),
    Sketcher.Constraint("DistanceX", 1, 1, 1, 2, 5.48046),
    Sketcher.Constraint("DistanceY", 36, 1, 36, 2, 0.80609),
    Sketcher.Constraint("DistanceY", 41, 1, 41, 2, 5.154021),
    Sketcher.Constraint("Distance", 0, 5.48046),
    Sketcher.Constraint("DistanceX", 52, 2, 52, 1, 6.376353),
    Sketcher.Constraint("DistanceY", 2, 2, 2, 1, 0.805008),
    Sketcher.Constraint("DistanceX", -1, 1, 50, 2, 7.696938),
])
sketch2.setExpression("Constraints[160]", "Params.sketch2_radius")
sketch2.setExpression("Constraints[161]", "Params.sketch2_width")
sketch2.setExpression("Constraints[162]", "Params.sketch2_length")
sketch2.setExpression("Constraints[163]", "Params.sketch2_length2")
pocket1 = body.newObject("PartDesign::Pocket", "Pocket")
pocket1.Profile = sketch2
pocket1.setExpression("Length", "Params.pocket1_length")
pocket1.Reversed = True

sketch3 = body.newObject("Sketcher::SketchObject", "Sketch002")
sketch3.AttachmentSupport = (doc.getObject("XY_Plane"), [""])
sketch3.MapMode = "FlatFace"
sketch3.addGeometry([
    Part.Circle(Vector(-25, 13, 0), Vector(0, 0, 1), 3),
    Part.Circle(Vector(-25, 13, 0), Vector(0, 0, 1), 1.5),
    Part.Circle(Vector(25, 13, 0), Vector(0, 0, 1), 3),
    Part.Circle(Vector(25, 13, 0), Vector(0, 0, 1), 1.5),
], False)
sketch3.addConstraint([
    Sketcher.Constraint("Coincident", 1, 3, 0, 3),
    Sketcher.Constraint("Coincident", 3, 3, 2, 3),
    Sketcher.Constraint("Equal", 0, 2),
    Sketcher.Constraint("Equal", 1, 3),
    Sketcher.Constraint("Symmetric", 0, 3, 2, 3, -2),
    Sketcher.Constraint("Diameter", 0, 6.0),
    Sketcher.Constraint("Diameter", 1, 3.0),
    Sketcher.Constraint("DistanceX", 0, 3, -1, 1, 25.0),
    Sketcher.Constraint("DistanceY", -1, 1, 0, 3, 13.0),
])
sketch3.setExpression("Constraints[5]", "Params.sketch3_diameter")
sketch3.setExpression("Constraints[6]", "Params.sketch3_diameter2")
pad2 = body.newObject("PartDesign::Pad", "Pad001")
pad2.Profile = sketch3
pad2.setExpression("Length", "Params.pad2_length")
pad2.Reversed = True
doc.recompute()

fillet = body.newObject("PartDesign::Fillet", "Fillet")
fillet.Base = (pad2, edges_at(pad2, [(-22, 13, 0), (28, 13, 0)]))
fillet.setExpression("Radius", "Params.fillet_radius")
doc.recompute()

chamfer = body.newObject("PartDesign::Chamfer", "Chamfer")
chamfer.Base = (fillet, edges_at(fillet, [(-26.5, 13, 1.5), (23.5, 13, 1.5)]))
chamfer.setExpression("Size", "Params.chamfer_size")

doc.recompute()
